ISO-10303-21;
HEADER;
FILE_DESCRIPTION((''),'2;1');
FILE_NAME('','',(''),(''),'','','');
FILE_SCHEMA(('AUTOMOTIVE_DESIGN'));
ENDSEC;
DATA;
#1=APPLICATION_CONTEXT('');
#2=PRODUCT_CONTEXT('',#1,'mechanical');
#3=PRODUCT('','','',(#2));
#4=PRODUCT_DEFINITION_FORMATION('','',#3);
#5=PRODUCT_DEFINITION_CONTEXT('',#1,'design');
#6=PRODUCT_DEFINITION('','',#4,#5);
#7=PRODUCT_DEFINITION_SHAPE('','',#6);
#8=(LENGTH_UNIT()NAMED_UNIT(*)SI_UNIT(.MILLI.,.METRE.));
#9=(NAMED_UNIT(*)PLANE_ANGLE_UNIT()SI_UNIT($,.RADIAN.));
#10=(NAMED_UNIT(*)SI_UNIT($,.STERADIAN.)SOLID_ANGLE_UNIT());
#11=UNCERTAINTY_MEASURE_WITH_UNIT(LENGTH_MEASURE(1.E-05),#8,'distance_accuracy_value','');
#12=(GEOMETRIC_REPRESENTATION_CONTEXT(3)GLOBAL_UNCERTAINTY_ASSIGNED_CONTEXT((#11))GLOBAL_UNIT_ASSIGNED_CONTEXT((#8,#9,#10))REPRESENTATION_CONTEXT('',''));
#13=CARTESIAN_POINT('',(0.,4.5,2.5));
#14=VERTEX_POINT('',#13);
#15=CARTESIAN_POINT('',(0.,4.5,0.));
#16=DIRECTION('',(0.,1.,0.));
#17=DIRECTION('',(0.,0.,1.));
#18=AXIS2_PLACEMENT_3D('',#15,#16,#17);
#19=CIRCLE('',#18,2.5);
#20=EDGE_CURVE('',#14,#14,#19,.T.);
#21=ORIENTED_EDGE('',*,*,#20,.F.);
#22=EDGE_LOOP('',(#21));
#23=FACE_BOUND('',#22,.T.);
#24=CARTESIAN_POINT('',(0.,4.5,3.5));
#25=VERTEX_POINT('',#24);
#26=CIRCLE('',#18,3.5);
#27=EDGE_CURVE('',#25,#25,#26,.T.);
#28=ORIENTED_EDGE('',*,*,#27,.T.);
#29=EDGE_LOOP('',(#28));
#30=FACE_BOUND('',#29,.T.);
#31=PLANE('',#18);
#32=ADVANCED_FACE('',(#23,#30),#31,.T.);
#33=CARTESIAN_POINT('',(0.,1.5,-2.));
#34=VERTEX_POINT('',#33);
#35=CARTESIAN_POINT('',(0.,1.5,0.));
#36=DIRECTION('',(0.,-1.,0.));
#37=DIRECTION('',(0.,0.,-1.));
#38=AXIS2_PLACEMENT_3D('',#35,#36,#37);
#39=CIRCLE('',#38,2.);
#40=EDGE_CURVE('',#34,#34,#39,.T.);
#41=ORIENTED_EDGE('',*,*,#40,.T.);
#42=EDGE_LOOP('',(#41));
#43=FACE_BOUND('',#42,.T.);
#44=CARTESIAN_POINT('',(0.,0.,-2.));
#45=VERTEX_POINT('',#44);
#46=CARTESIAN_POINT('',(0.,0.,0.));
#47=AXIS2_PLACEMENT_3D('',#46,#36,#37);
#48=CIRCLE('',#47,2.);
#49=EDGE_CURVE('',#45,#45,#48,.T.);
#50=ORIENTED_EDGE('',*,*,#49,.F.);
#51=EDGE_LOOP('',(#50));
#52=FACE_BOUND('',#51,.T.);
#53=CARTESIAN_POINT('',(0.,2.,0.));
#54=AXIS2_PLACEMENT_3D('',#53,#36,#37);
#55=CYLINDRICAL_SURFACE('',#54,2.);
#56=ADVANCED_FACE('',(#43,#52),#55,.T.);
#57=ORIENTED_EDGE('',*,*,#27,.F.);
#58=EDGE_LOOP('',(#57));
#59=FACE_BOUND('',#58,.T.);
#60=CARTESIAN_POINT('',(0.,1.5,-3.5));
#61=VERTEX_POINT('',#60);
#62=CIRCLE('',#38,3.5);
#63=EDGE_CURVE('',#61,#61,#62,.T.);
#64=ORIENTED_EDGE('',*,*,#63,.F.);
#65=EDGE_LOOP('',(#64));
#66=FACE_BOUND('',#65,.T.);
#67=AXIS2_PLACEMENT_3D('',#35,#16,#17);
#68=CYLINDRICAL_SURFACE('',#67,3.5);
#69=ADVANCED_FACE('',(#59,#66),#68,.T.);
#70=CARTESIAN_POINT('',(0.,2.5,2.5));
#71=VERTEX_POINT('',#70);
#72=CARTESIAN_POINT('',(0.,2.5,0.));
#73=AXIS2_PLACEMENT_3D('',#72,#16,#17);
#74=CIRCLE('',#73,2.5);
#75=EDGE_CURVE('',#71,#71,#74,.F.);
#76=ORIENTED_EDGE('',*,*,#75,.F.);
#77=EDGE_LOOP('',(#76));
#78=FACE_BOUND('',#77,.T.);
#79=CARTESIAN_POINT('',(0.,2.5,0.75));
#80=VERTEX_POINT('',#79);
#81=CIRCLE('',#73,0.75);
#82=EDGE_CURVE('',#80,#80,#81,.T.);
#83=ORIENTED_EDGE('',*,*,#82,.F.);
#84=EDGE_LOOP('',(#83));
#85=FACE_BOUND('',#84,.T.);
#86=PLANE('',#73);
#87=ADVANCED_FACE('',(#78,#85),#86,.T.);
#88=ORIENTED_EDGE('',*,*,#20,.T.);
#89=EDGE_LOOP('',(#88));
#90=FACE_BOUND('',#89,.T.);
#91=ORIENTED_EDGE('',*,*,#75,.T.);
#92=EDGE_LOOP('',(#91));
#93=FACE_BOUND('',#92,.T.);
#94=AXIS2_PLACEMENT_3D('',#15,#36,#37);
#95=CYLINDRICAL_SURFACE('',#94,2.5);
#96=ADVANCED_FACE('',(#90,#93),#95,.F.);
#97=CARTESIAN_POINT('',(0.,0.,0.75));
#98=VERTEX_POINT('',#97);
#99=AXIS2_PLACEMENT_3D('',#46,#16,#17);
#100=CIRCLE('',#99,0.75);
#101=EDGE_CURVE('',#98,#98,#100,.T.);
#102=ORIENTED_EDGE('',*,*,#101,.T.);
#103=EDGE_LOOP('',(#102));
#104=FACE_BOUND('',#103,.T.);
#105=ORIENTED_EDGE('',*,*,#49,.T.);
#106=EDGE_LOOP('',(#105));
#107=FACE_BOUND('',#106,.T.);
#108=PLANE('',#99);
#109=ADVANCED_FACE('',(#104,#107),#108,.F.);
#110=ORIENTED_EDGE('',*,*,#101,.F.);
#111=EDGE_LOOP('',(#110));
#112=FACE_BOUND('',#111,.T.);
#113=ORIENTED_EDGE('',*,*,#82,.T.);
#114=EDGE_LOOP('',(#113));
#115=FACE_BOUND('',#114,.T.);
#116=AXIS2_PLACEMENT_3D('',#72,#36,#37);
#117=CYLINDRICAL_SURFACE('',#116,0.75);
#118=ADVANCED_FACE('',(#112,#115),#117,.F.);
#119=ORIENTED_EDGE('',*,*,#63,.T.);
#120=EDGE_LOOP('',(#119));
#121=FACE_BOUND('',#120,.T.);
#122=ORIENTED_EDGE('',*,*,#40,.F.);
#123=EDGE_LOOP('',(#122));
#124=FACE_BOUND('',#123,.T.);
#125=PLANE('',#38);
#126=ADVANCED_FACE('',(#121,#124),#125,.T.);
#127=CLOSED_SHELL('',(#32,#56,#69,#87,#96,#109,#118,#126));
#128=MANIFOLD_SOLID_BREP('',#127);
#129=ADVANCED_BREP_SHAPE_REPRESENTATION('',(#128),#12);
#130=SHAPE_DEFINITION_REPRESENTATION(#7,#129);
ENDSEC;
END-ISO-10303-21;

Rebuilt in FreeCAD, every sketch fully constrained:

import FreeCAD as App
import Part
import Sketcher
from FreeCAD import Vector
Q = App.Units.Quantity

doc = App.newDocument("Part")
body = doc.addObject("PartDesign::Body", "Body")

sketch1 = doc.addObject("Sketcher::SketchObject", "Sketch")
body.addObject(sketch1)
sketch1.AttachmentSupport = (doc.XZ_Plane, [""])
sketch1.MapMode = "FlatFace"
sketch1.addGeometry([
    Part.Circle(Vector(0, 0, 0), Vector(0, 0, 1), 1.5),
    Part.Circle(Vector(0, 0, 0), Vector(0, 0, 1), 0.8),
], False)
sketch1.addConstraint([
    Sketcher.Constraint("Coincident", 0, 3, -1, 1),
    Sketcher.Constraint("Coincident", 1, 3, -1, 1),
    Sketcher.Constraint("Diameter", 0, Q("3 mm")),
    Sketcher.Constraint("Diameter", 1, Q("1.5 mm")),
])
pad1 = doc.addObject("PartDesign::Pad", "Pad")
body.addObject(pad1)
pad1.Profile = sketch1
pad1.Length = 2.5
pad1.Reversed = True
body2 = doc.addObject("PartDesign::Body", "Body001")

sketch2 = doc.addObject("Sketcher::SketchObject", "Sketch001")
body2.addObject(sketch2)
sketch2.AttachmentSupport = (doc.getObject("XZ_Plane001"), [""])
sketch2.MapMode = "FlatFace"
sketch2.AttachmentOffset = App.Placement(Vector(0, 0, -2.5), App.Rotation())
sketch2.addGeometry([
    Part.Circle(Vector(0, 0, 0), Vector(0, 0, 1), 3.5),
    Part.Circle(Vector(0, 0, 0), Vector(0, 0, 1), 2.5),
], False)
sketch2.addConstraint([
    Sketcher.Constraint("Coincident", 0, 3, -1, 1),
    Sketcher.Constraint("Coincident", 1, 3, -1, 1),
    Sketcher.Constraint("Diameter", 0, Q("7 mm")),
    Sketcher.Constraint("Diameter", 1, Q("5 mm")),
])
pad2 = doc.addObject("PartDesign::Pad", "Pad001")
body2.addObject(pad2)
pad2.Profile = sketch2
pad2.Length = 2
pad2.Reversed = True
body.AllowCompound = True
doc.recompute()

boolean = doc.addObject("PartDesign::Boolean", "Boolean")
body.addObject(boolean)
boolean.Type = "Fuse"
boolean.addObjects([body2])

sketch3 = doc.addObject("Sketcher::SketchObject", "Sketch002")
body.addObject(sketch3)
sketch3.AttachmentSupport = (doc.XZ_Plane, [""])
sketch3.MapMode = "FlatFace"
sketch3.AttachmentOffset = App.Placement(Vector(0, 0, -1.5), App.Rotation())
sketch3.addGeometry([
    Part.Circle(Vector(0, 0, 0), Vector(0, 0, 1), 3.5),
    Part.Circle(Vector(0, 0, 0), Vector(0, 0, 1), 0.8),
], False)
sketch3.addConstraint([
    Sketcher.Constraint("Coincident", 0, 3, -1, 1),
    Sketcher.Constraint("Coincident", 1, 3, -1, 1),
    Sketcher.Constraint("Diameter", 0, Q("7 mm")),
    Sketcher.Constraint("Diameter", 1, Q("1.5 mm")),
])
pad3 = doc.addObject("PartDesign::Pad", "Pad002")
body.addObject(pad3)
pad3.Profile = sketch3
pad3.Length = 1
pad3.Reversed = True

sketch4 = doc.addObject("Sketcher::SketchObject", "Sketch003")
body.addObject(sketch4)
sketch4.AttachmentSupport = (doc.XZ_Plane, [""])
sketch4.MapMode = "FlatFace"
sketch4.addGeometry([
    Part.Circle(Vector(0, 0, 0), Vector(0, 0, 1), 2),
    Part.Circle(Vector(0, 0, 0), Vector(0, 0, 1), 0.8),
], False)
sketch4.addConstraint([
    Sketcher.Constraint("Coincident", 0, 3, -1, 1),
    Sketcher.Constraint("Coincident", 1, 3, -1, 1),
    Sketcher.Constraint("Diameter", 0, Q("4 mm")),
    Sketcher.Constraint("Diameter", 1, Q("1.5 mm")),
])
pad4 = doc.addObject("PartDesign::Pad", "Pad003")
body.addObject(pad4)
pad4.Profile = sketch4
pad4.Length = 2
pad4.Reversed = True

doc.recompute()
